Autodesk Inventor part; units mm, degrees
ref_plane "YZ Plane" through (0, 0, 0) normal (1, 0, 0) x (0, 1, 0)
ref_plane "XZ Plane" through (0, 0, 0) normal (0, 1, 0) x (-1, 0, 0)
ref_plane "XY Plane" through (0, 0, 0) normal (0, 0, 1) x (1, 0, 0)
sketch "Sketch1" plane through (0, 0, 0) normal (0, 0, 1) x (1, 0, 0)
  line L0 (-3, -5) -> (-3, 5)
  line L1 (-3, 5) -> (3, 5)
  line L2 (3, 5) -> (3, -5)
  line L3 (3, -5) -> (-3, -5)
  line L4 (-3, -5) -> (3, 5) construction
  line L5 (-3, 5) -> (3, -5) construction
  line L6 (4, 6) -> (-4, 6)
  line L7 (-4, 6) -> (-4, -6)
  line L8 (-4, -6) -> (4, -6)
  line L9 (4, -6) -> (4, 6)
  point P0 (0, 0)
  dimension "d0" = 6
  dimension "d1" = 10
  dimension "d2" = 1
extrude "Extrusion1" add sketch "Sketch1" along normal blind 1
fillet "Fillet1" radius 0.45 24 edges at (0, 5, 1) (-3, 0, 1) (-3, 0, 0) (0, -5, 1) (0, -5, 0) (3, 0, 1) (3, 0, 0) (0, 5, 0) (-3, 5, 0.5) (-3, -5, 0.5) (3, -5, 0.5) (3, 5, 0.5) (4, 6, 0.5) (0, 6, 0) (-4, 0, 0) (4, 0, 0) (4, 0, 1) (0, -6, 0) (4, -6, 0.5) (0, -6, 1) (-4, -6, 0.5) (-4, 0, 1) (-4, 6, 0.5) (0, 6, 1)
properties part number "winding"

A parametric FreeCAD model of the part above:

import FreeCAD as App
import Part
import Sketcher
Q = App.Units.Quantity

doc = App.newDocument("Part")
params = doc.addObject("Spreadsheet::Sheet", "Params")
for row, (alias, value) in enumerate([
    ("sketch1_width", "6 mm"),
    ("sketch1_height", "10 mm"),
    ("pad1_length", "1 mm"),
    ("fillet_radius", "0.45 mm"),
], start=1):
    params.set(f"A{row}", alias)
    params.set(f"B{row}", "=" + value)
    params.setAlias(f"B{row}", alias)

body = doc.addObject("PartDesign::Body", "Body")

# Sketch on XY plane
sketch1 = body.newObject("Sketcher::SketchObject", "Sketch")
sketch1.AttachmentSupport = (doc.getObject("XY_Plane"), [""])
sketch1.MapMode = "FlatFace"
sketch1.addGeometry([
    Part.LineSegment(App.Vector(4, -6, 0), App.Vector(4, 6, 0)),  # 0
    Part.LineSegment(App.Vector(4, 6, 0), App.Vector(-4, 6, 0)),  # 1
    Part.LineSegment(App.Vector(-4, 6, 0), App.Vector(-4, -6, 0)),  # 2
    Part.LineSegment(App.Vector(-4, -6, 0), App.Vector(4, -6, 0)),  # 3
    Part.LineSegment(App.Vector(3, -5, 0), App.Vector(-3, -5, 0)),  # 4
    Part.LineSegment(App.Vector(-3, -5, 0), App.Vector(-3, 5, 0)),  # 5
    Part.LineSegment(App.Vector(-3, 5, 0), App.Vector(3, 5, 0)),  # 6
    Part.LineSegment(App.Vector(3, 5, 0), App.Vector(3, -5, 0)),  # 7
], False)
sketch1.addConstraint([
    Sketcher.Constraint("Coincident", 0, 2, 1, 1),
    Sketcher.Constraint("Coincident", 1, 2, 2, 1),
    Sketcher.Constraint("Coincident", 2, 2, 3, 1),
    Sketcher.Constraint("Coincident", 3, 2, 0, 1),
    Sketcher.Constraint("Coincident", 4, 2, 5, 1),
    Sketcher.Constraint("Coincident", 5, 2, 6, 1),
    Sketcher.Constraint("Coincident", 6, 2, 7, 1),
    Sketcher.Constraint("Coincident", 7, 2, 4, 1),
    Sketcher.Constraint("Vertical", 0),
    Sketcher.Constraint("Horizontal", 1),
    Sketcher.Constraint("Vertical", 2),
    Sketcher.Constraint("Horizontal", 3),
    Sketcher.Constraint("Horizontal", 4),
    Sketcher.Constraint("Vertical", 5),
    Sketcher.Constraint("Horizontal", 6),
    Sketcher.Constraint("Vertical", 7),
    Sketcher.Constraint("Symmetric", 0, 2, 2, 2, -1, 1),
    Sketcher.Constraint("Symmetric", 4, 2, 6, 2, -1, 1),
    Sketcher.Constraint("DistanceX", 4, 2, 4, 1, Q("6 mm")),
    Sketcher.Constraint("DistanceY", 5, 1, 5, 2, Q("10 mm")),
    Sketcher.Constraint("DistanceY", -1, 1, 0, 2, Q("6 mm")),
    Sketcher.Constraint("DistanceX", 2, 2, 4, 2, Q("1 mm")),
])
sketch1.setExpression("Constraints[18]", "Params.sketch1_width")
sketch1.setExpression("Constraints[19]", "Params.sketch1_height")
pad1 = body.newObject("PartDesign::Pad", "Pad")
pad1.Profile = sketch1
pad1.setExpression("Length", "Params.pad1_length")
doc.recompute()

fillet = body.newObject("PartDesign::Fillet", "Fillet")
fillet.Base = (pad1, ["Edge1"])
fillet.UseAllEdges = True
fillet.setExpression("Radius", "Params.fillet_radius")

doc.recompute()
